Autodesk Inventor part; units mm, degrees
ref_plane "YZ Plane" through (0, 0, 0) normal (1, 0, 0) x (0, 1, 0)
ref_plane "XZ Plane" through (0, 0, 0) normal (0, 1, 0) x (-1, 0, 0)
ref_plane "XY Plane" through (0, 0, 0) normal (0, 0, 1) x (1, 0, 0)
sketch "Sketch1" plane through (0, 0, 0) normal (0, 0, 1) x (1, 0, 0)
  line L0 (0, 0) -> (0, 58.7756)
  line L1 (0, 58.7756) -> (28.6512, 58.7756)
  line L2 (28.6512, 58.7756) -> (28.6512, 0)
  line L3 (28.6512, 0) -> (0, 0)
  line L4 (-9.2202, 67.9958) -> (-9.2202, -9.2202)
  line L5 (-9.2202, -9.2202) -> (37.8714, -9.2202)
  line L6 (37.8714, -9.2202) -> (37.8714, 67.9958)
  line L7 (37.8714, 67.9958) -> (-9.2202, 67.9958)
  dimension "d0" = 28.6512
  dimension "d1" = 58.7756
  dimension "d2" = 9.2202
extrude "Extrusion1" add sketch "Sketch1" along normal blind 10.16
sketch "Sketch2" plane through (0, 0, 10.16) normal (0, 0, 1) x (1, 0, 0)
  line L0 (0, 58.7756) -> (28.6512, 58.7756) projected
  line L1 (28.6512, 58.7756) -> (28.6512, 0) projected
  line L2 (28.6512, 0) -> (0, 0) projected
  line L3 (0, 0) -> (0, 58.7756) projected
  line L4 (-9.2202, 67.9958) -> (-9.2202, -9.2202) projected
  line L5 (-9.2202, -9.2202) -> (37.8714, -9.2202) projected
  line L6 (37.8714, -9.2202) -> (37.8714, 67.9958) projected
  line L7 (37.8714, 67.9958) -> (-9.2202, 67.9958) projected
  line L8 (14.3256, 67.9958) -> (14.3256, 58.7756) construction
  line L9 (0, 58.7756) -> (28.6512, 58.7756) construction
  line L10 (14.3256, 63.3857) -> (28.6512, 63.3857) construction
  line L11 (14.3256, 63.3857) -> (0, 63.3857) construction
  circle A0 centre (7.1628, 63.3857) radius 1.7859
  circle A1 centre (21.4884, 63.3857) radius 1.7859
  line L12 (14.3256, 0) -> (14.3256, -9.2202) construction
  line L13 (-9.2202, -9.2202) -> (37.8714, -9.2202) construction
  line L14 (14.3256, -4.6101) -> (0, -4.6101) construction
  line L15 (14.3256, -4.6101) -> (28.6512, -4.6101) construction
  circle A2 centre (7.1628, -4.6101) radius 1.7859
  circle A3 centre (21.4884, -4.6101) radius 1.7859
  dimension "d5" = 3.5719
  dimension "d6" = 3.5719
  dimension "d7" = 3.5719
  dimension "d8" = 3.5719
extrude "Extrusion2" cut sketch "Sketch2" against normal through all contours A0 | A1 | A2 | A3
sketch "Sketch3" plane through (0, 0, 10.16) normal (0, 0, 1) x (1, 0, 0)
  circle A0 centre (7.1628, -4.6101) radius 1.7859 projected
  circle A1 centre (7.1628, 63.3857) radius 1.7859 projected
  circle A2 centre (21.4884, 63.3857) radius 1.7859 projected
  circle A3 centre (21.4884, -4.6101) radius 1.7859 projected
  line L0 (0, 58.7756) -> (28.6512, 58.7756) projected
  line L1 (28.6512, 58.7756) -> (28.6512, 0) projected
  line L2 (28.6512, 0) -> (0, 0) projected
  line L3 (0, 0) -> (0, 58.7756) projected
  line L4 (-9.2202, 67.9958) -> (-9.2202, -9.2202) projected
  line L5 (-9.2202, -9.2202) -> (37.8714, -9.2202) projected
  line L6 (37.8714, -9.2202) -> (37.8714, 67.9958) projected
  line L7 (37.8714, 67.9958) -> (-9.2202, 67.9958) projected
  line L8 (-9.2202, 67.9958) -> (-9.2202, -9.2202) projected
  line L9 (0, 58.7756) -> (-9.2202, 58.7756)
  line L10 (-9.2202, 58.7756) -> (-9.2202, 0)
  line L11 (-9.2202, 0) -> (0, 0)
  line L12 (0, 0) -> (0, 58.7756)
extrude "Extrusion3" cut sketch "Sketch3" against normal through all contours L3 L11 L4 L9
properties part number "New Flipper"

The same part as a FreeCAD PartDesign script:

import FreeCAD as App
import Part
import Sketcher
from FreeCAD import Vector
Q = App.Units.Quantity

doc = App.newDocument("Part")
body = doc.addObject("PartDesign::Body", "Body")

sketch1 = body.newObject("Sketcher::SketchObject", "Sketch")
sketch1.AttachmentSupport = (doc.getObject("XY_Plane"), [""])
sketch1.MapMode = "FlatFace"
sketch1.addGeometry(Part.LineSegment(Vector(38, 68, 0), Vector(-9, 68, 0)), False)
sketch1.addGeometry(Part.LineSegment(Vector(-9, 68, 0), Vector(-9, -9, 0)), False)
sketch1.addGeometry(Part.LineSegment(Vector(-9, -9, 0), Vector(38, -9, 0)), False)
sketch1.addGeometry(Part.LineSegment(Vector(38, -9, 0), Vector(38, 68, 0)), False)
sketch1.addGeometry(Part.LineSegment(Vector(29, 0, 0), Vector(0, 0, 0)), False)
sketch1.addGeometry(Part.LineSegment(Vector(0, 0, 0), Vector(0, 59, 0)), False)
sketch1.addGeometry(Part.LineSegment(Vector(0, 59, 0), Vector(29, 59, 0)), False)
sketch1.addGeometry(Part.LineSegment(Vector(29, 59, 0), Vector(29, 0, 0)), False)
sketch1.addConstraint(Sketcher.Constraint("Coincident", 0, 2, 1, 1))
sketch1.addConstraint(Sketcher.Constraint("Coincident", 1, 2, 2, 1))
sketch1.addConstraint(Sketcher.Constraint("Coincident", 2, 2, 3, 1))
sketch1.addConstraint(Sketcher.Constraint("Coincident", 3, 2, 0, 1))
sketch1.addConstraint(Sketcher.Constraint("Coincident", 4, 2, 5, 1))
sketch1.addConstraint(Sketcher.Constraint("Coincident", 5, 2, 6, 1))
sketch1.addConstraint(Sketcher.Constraint("Coincident", 6, 2, 7, 1))
sketch1.addConstraint(Sketcher.Constraint("Coincident", 7, 2, 4, 1))
sketch1.addConstraint(Sketcher.Constraint("Horizontal", 0))
sketch1.addConstraint(Sketcher.Constraint("Vertical", 1))
sketch1.addConstraint(Sketcher.Constraint("Horizontal", 2))
sketch1.addConstraint(Sketcher.Constraint("Vertical", 3))
sketch1.addConstraint(Sketcher.Constraint("Horizontal", 4))
sketch1.addConstraint(Sketcher.Constraint("Vertical", 5))
sketch1.addConstraint(Sketcher.Constraint("Horizontal", 6))
sketch1.addConstraint(Sketcher.Constraint("Vertical", 7))
sketch1.addConstraint(Sketcher.Constraint("Coincident", 4, 2, -1, 1))
sketch1.addConstraint(Sketcher.Constraint("DistanceX", 4, 2, 4, 1, Q("1.128 in")))
sketch1.addConstraint(Sketcher.Constraint("DistanceY", 5, 1, 5, 2, Q("2.314 in")))
sketch1.addConstraint(Sketcher.Constraint("DistanceX", 0, 2, -1, 1, Q("0.363 in")))
sketch1.addConstraint(Sketcher.Constraint("DistanceY", 1, 2, -1, 1, Q("0.363 in")))
sketch1.addConstraint(Sketcher.Constraint("DistanceY", 5, 2, 0, 2, Q("0.363 in")))
sketch1.addConstraint(Sketcher.Constraint("DistanceX", 6, 2, 3, 2, Q("0.363 in")))
pad1 = body.newObject("PartDesign::Pad", "Pad")
pad1.Profile = sketch1
pad1.Length = Q("0.4 in")

sketch2 = body.newObject("Sketcher::SketchObject", "Sketch001")
sketch2.AttachmentSupport = (doc.getObject("XY_Plane"), [""])
sketch2.MapMode = "FlatFace"
sketch2.AttachmentOffset = App.Placement(Vector(0, 0, 0.4 * 25.4), App.Rotation())
sketch2.addGeometry(Part.Circle(Vector(7.2, 63.4, 0), Vector(0, 0, 1), 1.8), False)
sketch2.addGeometry(Part.Circle(Vector(21.5, 63.4, 0), Vector(0, 0, 1), 1.8), False)
sketch2.addGeometry(Part.Circle(Vector(7.2, -4.6, 0), Vector(0, 0, 1), 1.8), False)
sketch2.addGeometry(Part.Circle(Vector(21.5, -4.6, 0), Vector(0, 0, 1), 1.8), False)
sketch2.addConstraint(Sketcher.Constraint("Equal", 0, 1))
sketch2.addConstraint(Sketcher.Constraint("Equal", 1, 2))
sketch2.addConstraint(Sketcher.Constraint("Equal", 2, 3))
sketch2.addConstraint(Sketcher.Constraint("Horizontal", 0, 3, 1, 3))
sketch2.addConstraint(Sketcher.Constraint("Horizontal", 2, 3, 3, 3))
sketch2.addConstraint(Sketcher.Constraint("Vertical", 0, 3, 2, 3))
sketch2.addConstraint(Sketcher.Constraint("Vertical", 1, 3, 3, 3))
sketch2.addConstraint(Sketcher.Constraint("Diameter", 0, Q("0.140622 in")))
sketch2.addConstraint(Sketcher.Constraint("DistanceX", -1, 1, 0, 3, Q("0.282 in")))
sketch2.addConstraint(Sketcher.Constraint("DistanceX", -1, 1, 1, 3, Q("0.846 in")))
sketch2.addConstraint(Sketcher.Constraint("DistanceY", 2, 3, 0, 3, Q("2.677 in")))
sketch2.addConstraint(Sketcher.Constraint("DistanceY", -1, 1, 0, 3, Q("2.4955 in")))
pocket1 = body.newObject("PartDesign::Pocket", "Pocket")
pocket1.Profile = sketch2
pocket1.Type = "ThroughAll"

sketch3 = body.newObject("Sketcher::SketchObject", "Sketch002")
sketch3.AttachmentSupport = (doc.getObject("XY_Plane"), [""])
sketch3.MapMode = "FlatFace"
sketch3.AttachmentOffset = App.Placement(Vector(0, 0, 0.4 * 25.4), App.Rotation())
sketch3.addGeometry(Part.LineSegment(Vector(0, 0, 0), Vector(0, 59, 0)), False)
sketch3.addGeometry(Part.LineSegment(Vector(0, 59, 0), Vector(-9, 59, 0)), False)
sketch3.addGeometry(Part.LineSegment(Vector(-9, 59, 0), Vector(-9, 0, 0)), False)
sketch3.addGeometry(Part.LineSegment(Vector(-9, 0, 0), Vector(0, 0, 0)), False)
sketch3.addConstraint(Sketcher.Constraint("Coincident", 0, 2, 1, 1))
sketch3.addConstraint(Sketcher.Constraint("Coincident", 1, 2, 2, 1))
sketch3.addConstraint(Sketcher.Constraint("Coincident", 2, 2, 3, 1))
sketch3.addConstraint(Sketcher.Constraint("Coincident", 3, 2, 0, 1))
sketch3.addConstraint(Sketcher.Constraint("Vertical", 0))
sketch3.addConstraint(Sketcher.Constraint("Horizontal", 1))
sketch3.addConstraint(Sketcher.Constraint("Vertical", 2))
sketch3.addConstraint(Sketcher.Constraint("Horizontal", 3))
sketch3.addConstraint(Sketcher.Constraint("Coincident", 3, 2, -1, 1))
sketch3.addConstraint(Sketcher.Constraint("DistanceX", 1, 2, 1, 1, Q("0.363 in")))
sketch3.addConstraint(Sketcher.Constraint("DistanceY", 0, 1, 0, 2, Q("2.314 in")))
pocket2 = body.newObject("PartDesign::Pocket", "Pocket001")
pocket2.Profile = sketch3
pocket2.Type = "ThroughAll"

doc.recompute()
